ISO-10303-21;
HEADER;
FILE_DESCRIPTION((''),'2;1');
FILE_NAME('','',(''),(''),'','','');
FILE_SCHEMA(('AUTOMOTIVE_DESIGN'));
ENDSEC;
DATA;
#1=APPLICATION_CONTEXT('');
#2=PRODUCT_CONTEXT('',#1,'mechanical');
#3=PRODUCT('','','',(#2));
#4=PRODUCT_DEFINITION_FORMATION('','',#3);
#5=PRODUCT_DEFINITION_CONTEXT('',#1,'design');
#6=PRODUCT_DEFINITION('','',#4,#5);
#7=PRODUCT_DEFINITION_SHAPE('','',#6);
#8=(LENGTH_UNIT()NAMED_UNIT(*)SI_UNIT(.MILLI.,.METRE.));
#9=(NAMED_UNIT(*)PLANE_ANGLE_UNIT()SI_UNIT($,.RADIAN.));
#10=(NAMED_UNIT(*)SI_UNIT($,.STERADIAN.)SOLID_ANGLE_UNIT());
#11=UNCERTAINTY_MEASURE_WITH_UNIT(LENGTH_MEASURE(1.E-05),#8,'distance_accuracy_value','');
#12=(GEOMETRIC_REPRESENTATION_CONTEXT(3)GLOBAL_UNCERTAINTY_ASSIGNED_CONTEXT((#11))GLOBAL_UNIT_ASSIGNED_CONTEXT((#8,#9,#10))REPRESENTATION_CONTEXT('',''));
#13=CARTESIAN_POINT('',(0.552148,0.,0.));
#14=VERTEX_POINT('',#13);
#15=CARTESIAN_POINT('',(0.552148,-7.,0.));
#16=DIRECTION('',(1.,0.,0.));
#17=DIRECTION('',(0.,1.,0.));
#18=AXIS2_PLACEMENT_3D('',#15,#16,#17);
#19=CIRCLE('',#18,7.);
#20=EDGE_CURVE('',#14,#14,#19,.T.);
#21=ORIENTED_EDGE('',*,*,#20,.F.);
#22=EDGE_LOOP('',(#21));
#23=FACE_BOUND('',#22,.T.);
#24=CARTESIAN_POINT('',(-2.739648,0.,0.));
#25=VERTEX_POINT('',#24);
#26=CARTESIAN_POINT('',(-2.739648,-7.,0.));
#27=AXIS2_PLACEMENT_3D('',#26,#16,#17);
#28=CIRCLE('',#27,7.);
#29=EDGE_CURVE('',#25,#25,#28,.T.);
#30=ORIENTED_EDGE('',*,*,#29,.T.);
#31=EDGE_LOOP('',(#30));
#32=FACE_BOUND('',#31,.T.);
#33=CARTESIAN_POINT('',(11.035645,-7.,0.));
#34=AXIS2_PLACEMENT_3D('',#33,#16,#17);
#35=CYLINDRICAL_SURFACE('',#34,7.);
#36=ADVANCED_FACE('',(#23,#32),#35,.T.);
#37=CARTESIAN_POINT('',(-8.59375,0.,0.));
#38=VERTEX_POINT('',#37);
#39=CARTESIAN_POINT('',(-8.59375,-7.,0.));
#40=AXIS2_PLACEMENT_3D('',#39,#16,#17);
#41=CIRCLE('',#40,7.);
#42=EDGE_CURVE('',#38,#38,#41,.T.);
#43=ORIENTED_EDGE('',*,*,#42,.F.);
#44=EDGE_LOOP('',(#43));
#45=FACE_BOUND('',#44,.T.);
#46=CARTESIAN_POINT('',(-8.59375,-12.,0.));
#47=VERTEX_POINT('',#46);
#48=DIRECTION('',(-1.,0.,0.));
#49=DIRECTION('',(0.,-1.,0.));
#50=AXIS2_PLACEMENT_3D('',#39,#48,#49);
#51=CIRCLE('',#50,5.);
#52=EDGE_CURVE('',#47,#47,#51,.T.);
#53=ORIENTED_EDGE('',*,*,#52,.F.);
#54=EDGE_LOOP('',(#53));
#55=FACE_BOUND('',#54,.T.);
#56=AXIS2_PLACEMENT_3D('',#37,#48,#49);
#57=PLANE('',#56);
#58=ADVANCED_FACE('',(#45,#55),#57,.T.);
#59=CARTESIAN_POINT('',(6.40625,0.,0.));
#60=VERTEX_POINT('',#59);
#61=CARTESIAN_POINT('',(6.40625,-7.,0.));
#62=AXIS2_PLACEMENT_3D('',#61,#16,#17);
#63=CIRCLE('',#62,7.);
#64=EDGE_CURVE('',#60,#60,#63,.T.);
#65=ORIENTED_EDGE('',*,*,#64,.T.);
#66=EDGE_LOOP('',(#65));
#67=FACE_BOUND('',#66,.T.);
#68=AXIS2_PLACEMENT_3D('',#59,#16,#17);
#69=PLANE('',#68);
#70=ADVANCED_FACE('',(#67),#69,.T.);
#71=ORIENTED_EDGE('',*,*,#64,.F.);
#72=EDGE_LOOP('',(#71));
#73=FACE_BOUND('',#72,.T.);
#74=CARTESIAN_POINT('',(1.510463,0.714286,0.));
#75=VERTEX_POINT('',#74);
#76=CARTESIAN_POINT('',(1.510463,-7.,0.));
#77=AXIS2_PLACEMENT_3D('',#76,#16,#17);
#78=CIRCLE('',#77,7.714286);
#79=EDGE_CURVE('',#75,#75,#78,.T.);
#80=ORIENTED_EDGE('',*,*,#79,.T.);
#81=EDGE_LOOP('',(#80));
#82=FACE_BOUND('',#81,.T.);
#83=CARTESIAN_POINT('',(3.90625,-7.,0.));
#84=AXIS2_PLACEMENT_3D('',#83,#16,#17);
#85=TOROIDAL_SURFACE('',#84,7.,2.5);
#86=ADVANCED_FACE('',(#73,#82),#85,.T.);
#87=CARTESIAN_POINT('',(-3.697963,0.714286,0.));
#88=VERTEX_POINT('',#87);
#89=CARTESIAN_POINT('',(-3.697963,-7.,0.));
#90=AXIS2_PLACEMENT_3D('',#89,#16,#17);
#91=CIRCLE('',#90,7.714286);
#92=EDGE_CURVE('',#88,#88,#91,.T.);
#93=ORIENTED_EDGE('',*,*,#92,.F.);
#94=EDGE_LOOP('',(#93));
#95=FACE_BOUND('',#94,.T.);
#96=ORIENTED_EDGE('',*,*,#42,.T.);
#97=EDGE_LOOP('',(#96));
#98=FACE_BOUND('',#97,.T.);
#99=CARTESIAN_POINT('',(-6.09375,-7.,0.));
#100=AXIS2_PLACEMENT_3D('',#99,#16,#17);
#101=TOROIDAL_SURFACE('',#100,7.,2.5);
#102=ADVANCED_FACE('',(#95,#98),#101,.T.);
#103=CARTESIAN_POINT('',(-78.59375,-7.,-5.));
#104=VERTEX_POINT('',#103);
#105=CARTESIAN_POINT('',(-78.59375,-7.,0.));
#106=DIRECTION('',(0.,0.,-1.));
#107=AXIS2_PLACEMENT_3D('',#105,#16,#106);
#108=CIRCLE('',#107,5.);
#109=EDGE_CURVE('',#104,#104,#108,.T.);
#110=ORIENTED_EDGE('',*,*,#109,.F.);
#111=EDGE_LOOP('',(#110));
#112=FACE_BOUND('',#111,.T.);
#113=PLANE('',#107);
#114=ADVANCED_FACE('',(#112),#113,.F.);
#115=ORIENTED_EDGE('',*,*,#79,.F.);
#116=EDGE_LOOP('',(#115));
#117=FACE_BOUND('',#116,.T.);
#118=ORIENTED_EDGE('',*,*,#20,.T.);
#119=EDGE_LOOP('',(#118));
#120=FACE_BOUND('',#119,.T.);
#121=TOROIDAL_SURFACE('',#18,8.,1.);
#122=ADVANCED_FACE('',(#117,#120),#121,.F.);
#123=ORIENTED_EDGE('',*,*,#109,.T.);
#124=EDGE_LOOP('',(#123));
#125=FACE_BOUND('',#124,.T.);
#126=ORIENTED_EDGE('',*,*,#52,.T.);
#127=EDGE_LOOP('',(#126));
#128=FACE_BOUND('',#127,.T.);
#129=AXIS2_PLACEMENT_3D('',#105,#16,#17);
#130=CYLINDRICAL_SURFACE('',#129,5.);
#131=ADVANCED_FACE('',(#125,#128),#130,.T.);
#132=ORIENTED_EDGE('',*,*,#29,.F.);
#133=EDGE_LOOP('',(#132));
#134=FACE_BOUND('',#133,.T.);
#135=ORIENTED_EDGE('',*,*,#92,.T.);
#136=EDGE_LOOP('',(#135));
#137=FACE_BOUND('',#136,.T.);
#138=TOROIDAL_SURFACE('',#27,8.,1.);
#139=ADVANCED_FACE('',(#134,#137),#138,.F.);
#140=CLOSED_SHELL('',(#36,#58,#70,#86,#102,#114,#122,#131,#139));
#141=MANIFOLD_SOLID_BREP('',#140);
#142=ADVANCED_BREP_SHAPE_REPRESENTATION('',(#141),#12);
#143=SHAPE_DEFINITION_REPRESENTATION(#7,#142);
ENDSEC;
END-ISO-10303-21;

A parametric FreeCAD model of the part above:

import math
import FreeCAD as App
import Part
import Sketcher

V = App.Vector
Q = App.Units.Quantity

doc = App.newDocument("Part")
body = doc.addObject("PartDesign::Body", "Body")

# Sketch on XY plane
sketch1 = doc.addObject("Sketcher::SketchObject", "Sketch")
body.addObject(sketch1)
sketch1.AttachmentSupport = (doc.XY_Plane, [""])
sketch1.MapMode = "FlatFace"
sketch1.addGeometry(Part.ArcOfCircle(Part.Circle(V(3.9, 0, 0), V(0, 0, 1), 2.5), math.radians(0), math.radians(163)), False)
sketch1.addGeometry(Part.ArcOfCircle(Part.Circle(V(0.6, 1, 0), V(0, 0, 1), 1), math.radians(-90), math.radians(-17)), False)
sketch1.addGeometry(Part.LineSegment(V(0.6, 0, 0), V(-2.7, 0, 0)), False)
sketch1.addGeometry(Part.ArcOfCircle(Part.Circle(V(-2.7, 1, 0), V(0, 0, 1), 1), math.radians(-163), math.radians(-90)), False)
sketch1.addGeometry(Part.ArcOfCircle(Part.Circle(V(-6.1, 0, 0), V(0, 0, 1), 2.5), math.radians(17), math.radians(180)), False)
sketch1.addGeometry(Part.LineSegment(V(-8.6, 0, 0), V(-8.6, -2, 0)), False)
sketch1.addGeometry(Part.LineSegment(V(-8.6, -2, 0), V(6.4, -2, 0)), False)
sketch1.addGeometry(Part.LineSegment(V(6.4, -2, 0), V(6.4, 0, 0)), False)
sketch1.addGeometry(Part.LineSegment(V(6.4, -7, 0), V(-8.6, -7, 0)), True)  # axis
sketch1.addConstraint(Sketcher.Constraint("Tangent", 0, 2, 1, 2))
sketch1.addConstraint(Sketcher.Constraint("Tangent", 1, 1, 2, 1))
sketch1.addConstraint(Sketcher.Constraint("Tangent", 2, 2, 3, 2))
sketch1.addConstraint(Sketcher.Constraint("Tangent", 3, 1, 4, 1))
sketch1.addConstraint(Sketcher.Constraint("Tangent", 4, 2, 5, 1))
sketch1.addConstraint(Sketcher.Constraint("Coincident", 5, 2, 6, 1))
sketch1.addConstraint(Sketcher.Constraint("Coincident", 6, 2, 7, 1))
sketch1.addConstraint(Sketcher.Constraint("Tangent", 7, 2, 0, 1))
sketch1.addConstraint(Sketcher.Constraint("Horizontal", 2))
sketch1.addConstraint(Sketcher.Constraint("Vertical", 5))
sketch1.addConstraint(Sketcher.Constraint("Horizontal", 6))
sketch1.addConstraint(Sketcher.Constraint("Vertical", 7))
sketch1.addConstraint(Sketcher.Constraint("Horizontal", 8))
sketch1.addConstraint(Sketcher.Constraint("Equal", 1, 3))
sketch1.addConstraint(Sketcher.Constraint("Equal", 0, 4))
sketch1.addConstraint(Sketcher.Constraint("PointOnObject", 0, 3, -1))
sketch1.addConstraint(Sketcher.Constraint("PointOnObject", 4, 3, -1))
sketch1.addConstraint(Sketcher.Constraint("PointOnObject", 1, 1, -1))
sketch1.addConstraint(Sketcher.Constraint("Vertical", 7, 2, 8, 1))
sketch1.addConstraint(Sketcher.Constraint("Vertical", 5, 2, 8, 2))
sketch1.addConstraint(Sketcher.Constraint("Radius", 1, Q("1 mm")))
sketch1.addConstraint(Sketcher.Constraint("Radius", 0, Q("2.5 mm")))
sketch1.addConstraint(Sketcher.Constraint("DistanceX", 6, 1, 6, 2, Q("15 mm")))
sketch1.addConstraint(Sketcher.Constraint("DistanceY", 5, 2, 5, 1, Q("2 mm")))
sketch1.addConstraint(Sketcher.Constraint("DistanceY", 8, 1, -1, 1, Q("7 mm")))
sketch1.addConstraint(Sketcher.Constraint("DistanceX", -1, 1, 0, 3, Q("3.90625 mm")))
revolution = doc.addObject("PartDesign::Revolution", "Revolution")
body.addObject(revolution)
revolution.Profile = sketch1
revolution.ReferenceAxis = (sketch1, ["Axis0"])
revolution.Angle = 360

# Sketch on YZ plane
sketch2 = doc.addObject("Sketcher::SketchObject", "Sketch001")
body.addObject(sketch2)
sketch2.AttachmentSupport = (doc.YZ_Plane, [""])
sketch2.MapMode = "FlatFace"
sketch2.AttachmentOffset = App.Placement(V(0, 0, 6.40625), App.Rotation())
sketch2.addGeometry(Part.Circle(V(-7, 0, 0), V(0, 0, 1), 5), False)
sketch2.addConstraint(Sketcher.Constraint("PointOnObject", 0, 3, -1))
sketch2.addConstraint(Sketcher.Constraint("Diameter", 0, Q("10 mm")))
sketch2.addConstraint(Sketcher.Constraint("DistanceX", 0, 3, -1, 1, Q("7 mm")))
pad1 = doc.addObject("PartDesign::Pad", "Pad")
body.addObject(pad1)
pad1.Profile = sketch2
pad1.Length = 85
pad1.Reversed = True

doc.recompute()
